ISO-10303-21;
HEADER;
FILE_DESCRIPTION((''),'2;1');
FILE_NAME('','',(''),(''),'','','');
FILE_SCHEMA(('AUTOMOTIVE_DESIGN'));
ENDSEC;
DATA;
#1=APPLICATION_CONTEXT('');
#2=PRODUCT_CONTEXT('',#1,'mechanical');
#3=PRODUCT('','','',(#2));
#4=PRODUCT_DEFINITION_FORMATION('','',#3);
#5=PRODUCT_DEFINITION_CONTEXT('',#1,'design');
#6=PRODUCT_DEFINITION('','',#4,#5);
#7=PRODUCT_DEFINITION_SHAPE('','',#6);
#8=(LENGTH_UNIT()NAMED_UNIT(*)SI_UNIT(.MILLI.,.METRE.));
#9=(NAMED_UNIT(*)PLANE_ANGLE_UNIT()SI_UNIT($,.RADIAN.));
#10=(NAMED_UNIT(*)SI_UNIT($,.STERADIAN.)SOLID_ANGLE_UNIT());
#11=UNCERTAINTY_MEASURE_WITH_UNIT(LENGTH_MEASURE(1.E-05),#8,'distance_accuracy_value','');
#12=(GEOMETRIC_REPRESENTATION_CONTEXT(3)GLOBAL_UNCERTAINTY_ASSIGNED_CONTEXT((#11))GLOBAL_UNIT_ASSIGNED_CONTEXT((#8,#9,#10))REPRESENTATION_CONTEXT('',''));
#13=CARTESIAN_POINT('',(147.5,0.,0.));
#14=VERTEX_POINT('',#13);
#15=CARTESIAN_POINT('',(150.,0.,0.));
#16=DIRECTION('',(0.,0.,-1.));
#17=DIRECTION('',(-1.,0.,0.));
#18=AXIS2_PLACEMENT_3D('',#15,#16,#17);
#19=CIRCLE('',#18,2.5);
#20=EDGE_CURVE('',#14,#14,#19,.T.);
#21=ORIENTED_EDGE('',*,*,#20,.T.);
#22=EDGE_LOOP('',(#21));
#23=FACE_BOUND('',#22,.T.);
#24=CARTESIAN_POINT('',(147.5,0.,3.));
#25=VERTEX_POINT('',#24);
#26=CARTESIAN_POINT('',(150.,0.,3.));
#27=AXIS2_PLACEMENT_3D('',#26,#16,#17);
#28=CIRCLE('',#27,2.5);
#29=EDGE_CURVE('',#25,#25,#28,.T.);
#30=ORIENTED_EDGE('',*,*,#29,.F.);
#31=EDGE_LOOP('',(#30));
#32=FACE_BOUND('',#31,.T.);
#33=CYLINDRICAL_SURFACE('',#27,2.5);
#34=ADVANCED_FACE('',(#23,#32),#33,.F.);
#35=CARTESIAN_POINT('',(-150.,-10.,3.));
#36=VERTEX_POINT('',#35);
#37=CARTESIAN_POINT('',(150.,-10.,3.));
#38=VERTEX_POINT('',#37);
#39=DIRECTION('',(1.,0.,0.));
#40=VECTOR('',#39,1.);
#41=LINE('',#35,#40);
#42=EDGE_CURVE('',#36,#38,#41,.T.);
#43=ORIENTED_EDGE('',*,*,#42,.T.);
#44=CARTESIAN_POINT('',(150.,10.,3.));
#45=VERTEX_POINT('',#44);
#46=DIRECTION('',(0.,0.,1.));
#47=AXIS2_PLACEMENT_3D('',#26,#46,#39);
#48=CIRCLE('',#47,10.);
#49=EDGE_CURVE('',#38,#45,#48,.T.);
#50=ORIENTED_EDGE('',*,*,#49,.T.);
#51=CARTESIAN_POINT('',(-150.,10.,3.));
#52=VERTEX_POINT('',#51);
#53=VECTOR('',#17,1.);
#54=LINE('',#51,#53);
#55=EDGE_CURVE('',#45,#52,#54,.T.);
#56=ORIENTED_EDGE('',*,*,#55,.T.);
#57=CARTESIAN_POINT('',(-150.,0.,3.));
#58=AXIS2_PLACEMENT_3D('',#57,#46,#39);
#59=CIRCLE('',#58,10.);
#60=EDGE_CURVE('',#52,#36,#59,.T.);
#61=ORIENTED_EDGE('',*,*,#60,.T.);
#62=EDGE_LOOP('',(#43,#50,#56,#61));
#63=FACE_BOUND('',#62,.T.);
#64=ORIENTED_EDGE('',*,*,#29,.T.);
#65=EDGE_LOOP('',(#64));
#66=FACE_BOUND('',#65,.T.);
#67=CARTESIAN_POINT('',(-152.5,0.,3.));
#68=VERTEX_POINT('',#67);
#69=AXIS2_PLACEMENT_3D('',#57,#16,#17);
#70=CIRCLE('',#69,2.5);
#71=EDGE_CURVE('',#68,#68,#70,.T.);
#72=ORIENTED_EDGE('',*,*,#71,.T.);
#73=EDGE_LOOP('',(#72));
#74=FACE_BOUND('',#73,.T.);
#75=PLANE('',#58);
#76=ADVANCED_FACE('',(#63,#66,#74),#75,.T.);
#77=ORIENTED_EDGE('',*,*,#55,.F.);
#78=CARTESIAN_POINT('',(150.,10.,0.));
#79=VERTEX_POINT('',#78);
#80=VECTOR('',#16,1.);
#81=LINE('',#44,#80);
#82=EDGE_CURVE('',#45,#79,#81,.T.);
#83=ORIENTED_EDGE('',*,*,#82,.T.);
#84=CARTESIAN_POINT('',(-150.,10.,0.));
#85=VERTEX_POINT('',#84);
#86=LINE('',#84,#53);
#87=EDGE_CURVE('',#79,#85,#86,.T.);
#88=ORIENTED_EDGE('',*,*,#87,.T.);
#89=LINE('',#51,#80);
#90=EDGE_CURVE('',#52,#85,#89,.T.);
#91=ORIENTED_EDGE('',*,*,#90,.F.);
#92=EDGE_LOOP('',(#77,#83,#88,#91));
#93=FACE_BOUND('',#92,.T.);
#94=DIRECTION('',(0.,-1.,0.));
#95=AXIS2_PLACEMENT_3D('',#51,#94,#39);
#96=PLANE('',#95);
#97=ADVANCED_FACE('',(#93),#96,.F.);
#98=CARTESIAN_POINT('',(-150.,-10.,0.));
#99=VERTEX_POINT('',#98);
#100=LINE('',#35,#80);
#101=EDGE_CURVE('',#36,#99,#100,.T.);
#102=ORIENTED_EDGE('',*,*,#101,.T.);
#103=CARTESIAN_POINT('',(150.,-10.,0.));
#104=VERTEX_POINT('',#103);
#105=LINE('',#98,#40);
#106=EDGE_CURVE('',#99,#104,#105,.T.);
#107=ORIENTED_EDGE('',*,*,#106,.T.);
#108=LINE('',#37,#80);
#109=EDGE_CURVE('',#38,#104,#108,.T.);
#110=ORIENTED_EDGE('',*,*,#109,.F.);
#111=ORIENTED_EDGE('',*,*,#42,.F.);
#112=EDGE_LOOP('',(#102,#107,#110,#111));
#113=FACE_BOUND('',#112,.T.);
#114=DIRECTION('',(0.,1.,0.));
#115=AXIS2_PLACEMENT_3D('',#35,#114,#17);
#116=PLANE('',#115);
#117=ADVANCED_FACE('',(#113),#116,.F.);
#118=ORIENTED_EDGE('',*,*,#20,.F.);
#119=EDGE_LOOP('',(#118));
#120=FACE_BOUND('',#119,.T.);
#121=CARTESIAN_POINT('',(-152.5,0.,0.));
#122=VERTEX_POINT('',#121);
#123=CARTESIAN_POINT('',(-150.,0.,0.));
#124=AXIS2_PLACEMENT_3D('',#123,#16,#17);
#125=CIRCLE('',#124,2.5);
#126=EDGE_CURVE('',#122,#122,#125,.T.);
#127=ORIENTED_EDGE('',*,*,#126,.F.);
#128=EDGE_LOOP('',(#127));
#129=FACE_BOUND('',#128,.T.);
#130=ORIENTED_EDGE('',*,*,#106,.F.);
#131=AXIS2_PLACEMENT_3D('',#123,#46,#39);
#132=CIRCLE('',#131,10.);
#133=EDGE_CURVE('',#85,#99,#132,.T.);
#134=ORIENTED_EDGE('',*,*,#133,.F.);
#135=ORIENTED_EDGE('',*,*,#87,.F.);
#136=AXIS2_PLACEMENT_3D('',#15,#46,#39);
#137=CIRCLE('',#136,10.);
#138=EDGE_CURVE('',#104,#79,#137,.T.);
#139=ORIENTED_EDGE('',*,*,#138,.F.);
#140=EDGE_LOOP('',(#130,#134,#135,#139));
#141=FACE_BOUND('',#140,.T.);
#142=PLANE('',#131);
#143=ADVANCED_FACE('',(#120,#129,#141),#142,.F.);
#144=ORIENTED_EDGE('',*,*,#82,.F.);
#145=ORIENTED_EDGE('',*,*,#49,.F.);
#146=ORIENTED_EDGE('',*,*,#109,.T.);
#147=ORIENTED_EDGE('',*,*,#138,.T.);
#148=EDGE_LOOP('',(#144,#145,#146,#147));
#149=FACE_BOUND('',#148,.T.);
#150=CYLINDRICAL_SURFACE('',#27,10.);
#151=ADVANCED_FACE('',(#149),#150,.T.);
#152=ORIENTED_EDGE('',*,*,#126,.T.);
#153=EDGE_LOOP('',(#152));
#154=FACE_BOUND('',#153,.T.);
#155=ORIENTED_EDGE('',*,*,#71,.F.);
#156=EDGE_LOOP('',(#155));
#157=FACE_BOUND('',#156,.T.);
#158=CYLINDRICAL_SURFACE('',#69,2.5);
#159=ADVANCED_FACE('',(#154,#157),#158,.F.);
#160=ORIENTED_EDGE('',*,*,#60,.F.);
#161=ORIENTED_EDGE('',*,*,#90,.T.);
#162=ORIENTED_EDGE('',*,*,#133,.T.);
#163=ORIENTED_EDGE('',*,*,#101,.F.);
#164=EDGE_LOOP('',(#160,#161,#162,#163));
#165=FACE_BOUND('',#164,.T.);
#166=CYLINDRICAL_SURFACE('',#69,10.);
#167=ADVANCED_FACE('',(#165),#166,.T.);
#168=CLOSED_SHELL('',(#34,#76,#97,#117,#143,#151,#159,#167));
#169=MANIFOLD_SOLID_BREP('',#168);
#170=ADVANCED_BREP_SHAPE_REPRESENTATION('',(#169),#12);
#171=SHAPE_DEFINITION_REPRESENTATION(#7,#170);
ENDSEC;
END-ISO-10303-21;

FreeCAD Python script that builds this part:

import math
import FreeCAD as App
import Part
import Sketcher

V = App.Vector

doc = App.newDocument("Part")
body = doc.addObject("PartDesign::Body", "Body")

sketch1 = body.newObject("Sketcher::SketchObject", "Sketch")
sketch1.AttachmentSupport = (doc.getObject("XY_Plane"), [""])
sketch1.MapMode = "FlatFace"
sketch1.addGeometry([
    Part.LineSegment(V(150, 10, 0), V(-150, 10, 0)),
    Part.ArcOfCircle(Part.Circle(V(-150, 0, 0), V(0, 0, 1), 10), math.radians(90), math.radians(270)),
    Part.LineSegment(V(-150, -10, 0), V(150, -10, 0)),
    Part.ArcOfCircle(Part.Circle(V(150, 0, 0), V(0, 0, 1), 10), math.radians(-90), math.radians(90)),
], False)
sketch1.addConstraint([
    Sketcher.Constraint("Tangent", 0, 2, 1, 1),
    Sketcher.Constraint("Tangent", 1, 2, 2, 1),
    Sketcher.Constraint("Tangent", 2, 2, 3, 1),
    Sketcher.Constraint("Tangent", 3, 2, 0, 1),
    Sketcher.Constraint("Horizontal", 0),
    Sketcher.Constraint("Horizontal", 2),
    Sketcher.Constraint("Symmetric", 1, 3, 3, 3, -1, 1),
    Sketcher.Constraint("Radius", 1, 10.0),
    Sketcher.Constraint("DistanceX", 0, 2, 0, 1, 300.0),
])
pad1 = body.newObject("PartDesign::Pad", "Pad")
pad1.Profile = sketch1
pad1.Length = 3

sketch2 = body.newObject("Sketcher::SketchObject", "Sketch001")
sketch2.AttachmentSupport = (doc.getObject("XY_Plane"), [""])
sketch2.MapMode = "FlatFace"
sketch2.addGeometry([
    Part.Circle(V(-150, 0, 0), V(0, 0, 1), 2.5),
    Part.Circle(V(150, 0, 0), V(0, 0, 1), 2.5),
], False)
sketch2.addConstraint([
    Sketcher.Constraint("Equal", 0, 1),
    Sketcher.Constraint("Symmetric", 0, 3, 1, 3, -1, 1),
    Sketcher.Constraint("PointOnObject", 0, 3, -1),
    Sketcher.Constraint("Diameter", 0, 5.0),
    Sketcher.Constraint("DistanceX", 0, 3, -1, 1, 150.0),
])
pocket1 = body.newObject("PartDesign::Pocket", "Pocket")
pocket1.Profile = sketch2
pocket1.Length = 3
pocket1.Reversed = True

doc.recompute()
